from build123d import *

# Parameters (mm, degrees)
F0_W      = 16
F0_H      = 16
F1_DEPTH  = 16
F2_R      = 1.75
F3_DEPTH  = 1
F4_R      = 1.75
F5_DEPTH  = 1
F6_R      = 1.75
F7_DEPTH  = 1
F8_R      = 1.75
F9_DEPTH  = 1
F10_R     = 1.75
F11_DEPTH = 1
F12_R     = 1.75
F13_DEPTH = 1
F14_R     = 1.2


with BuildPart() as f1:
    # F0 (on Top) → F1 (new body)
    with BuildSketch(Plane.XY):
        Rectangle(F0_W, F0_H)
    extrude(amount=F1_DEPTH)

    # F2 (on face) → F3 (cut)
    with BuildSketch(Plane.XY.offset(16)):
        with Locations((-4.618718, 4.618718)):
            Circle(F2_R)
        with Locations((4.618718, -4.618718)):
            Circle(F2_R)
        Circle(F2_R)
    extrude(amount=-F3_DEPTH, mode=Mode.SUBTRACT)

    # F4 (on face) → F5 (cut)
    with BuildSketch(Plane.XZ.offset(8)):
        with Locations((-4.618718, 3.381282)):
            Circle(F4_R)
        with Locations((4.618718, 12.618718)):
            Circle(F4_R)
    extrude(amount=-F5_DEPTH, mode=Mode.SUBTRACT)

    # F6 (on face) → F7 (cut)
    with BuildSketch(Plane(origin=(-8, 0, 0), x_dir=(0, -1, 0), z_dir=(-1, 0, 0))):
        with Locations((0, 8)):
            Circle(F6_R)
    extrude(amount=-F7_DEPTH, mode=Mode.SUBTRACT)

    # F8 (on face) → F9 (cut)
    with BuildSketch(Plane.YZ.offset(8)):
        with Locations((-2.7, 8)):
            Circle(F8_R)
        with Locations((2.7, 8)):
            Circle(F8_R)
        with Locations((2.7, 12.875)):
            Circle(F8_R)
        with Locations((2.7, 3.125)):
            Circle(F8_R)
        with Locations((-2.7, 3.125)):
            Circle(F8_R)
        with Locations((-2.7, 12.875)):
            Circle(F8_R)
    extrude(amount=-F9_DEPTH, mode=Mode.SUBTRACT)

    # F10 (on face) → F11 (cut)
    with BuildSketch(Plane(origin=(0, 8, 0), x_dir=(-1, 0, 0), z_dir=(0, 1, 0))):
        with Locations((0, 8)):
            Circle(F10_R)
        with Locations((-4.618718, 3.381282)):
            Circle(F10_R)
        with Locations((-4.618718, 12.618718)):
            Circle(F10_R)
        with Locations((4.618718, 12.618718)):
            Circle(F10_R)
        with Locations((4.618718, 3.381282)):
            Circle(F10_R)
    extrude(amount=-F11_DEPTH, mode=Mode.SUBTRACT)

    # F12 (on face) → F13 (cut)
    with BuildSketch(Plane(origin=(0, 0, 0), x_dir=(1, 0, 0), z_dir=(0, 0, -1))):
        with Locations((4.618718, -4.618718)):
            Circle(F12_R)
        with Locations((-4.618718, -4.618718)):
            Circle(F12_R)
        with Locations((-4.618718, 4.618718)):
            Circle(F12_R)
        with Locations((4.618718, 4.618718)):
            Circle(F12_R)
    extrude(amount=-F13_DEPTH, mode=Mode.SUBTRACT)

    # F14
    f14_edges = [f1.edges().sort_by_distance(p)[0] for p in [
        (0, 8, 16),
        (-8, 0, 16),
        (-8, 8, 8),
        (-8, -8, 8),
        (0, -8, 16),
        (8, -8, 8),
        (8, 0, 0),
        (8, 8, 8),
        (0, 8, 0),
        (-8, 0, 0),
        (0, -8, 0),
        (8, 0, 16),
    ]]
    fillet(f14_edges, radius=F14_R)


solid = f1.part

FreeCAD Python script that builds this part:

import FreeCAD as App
import Part
import Sketcher

V = App.Vector
Q = App.Units.Quantity


def edges_at(feature, points):
    """Names of the edges that pass closest to the given points."""
    edges = feature.Shape.Edges
    near = lambda p: min(range(len(edges)), key=lambda i: edges[i].distToShape(Part.Vertex(*p))[0])
    return sorted({f"Edge{near(p) + 1}" for p in points})


def add_polygon(sketch, points):
    """Adds a closed chain of lines whose ends are joined by coincident constraints."""
    first, n = sketch.GeometryCount, len(points)
    for a, b in zip(points, points[1:] + points[:1]):
        sketch.addGeometry(Part.LineSegment(App.Vector(*a, 0), App.Vector(*b, 0)), False)
    for i in range(n):
        sketch.addConstraint(Sketcher.Constraint("Coincident", first + i, 2, first + (i + 1) % n, 1))

doc = App.newDocument("Part")
body = doc.addObject("PartDesign::Body", "Body")

sketch1 = body.newObject("Sketcher::SketchObject", "Sketch")
sketch1.AttachmentSupport = (doc.getObject("XY_Plane"), [""])
sketch1.MapMode = "FlatFace"
add_polygon(sketch1, [(-8, 8), (-8, -8), (8, -8), (8, 8)])
sketch1.addConstraint(Sketcher.Constraint("Vertical", 0))
sketch1.addConstraint(Sketcher.Constraint("Horizontal", 1))
sketch1.addConstraint(Sketcher.Constraint("Vertical", 2))
sketch1.addConstraint(Sketcher.Constraint("Horizontal", 3))
sketch1.addConstraint(Sketcher.Constraint("Symmetric", 0, 2, 2, 2, -1, 1))
sketch1.addConstraint(Sketcher.Constraint("Equal", 3, 0))
sketch1.addConstraint(Sketcher.Constraint("DistanceX", 1, 1, 1, 2, Q("16 mm")))
pad1 = body.newObject("PartDesign::Pad", "Pad")
pad1.Profile = sketch1
pad1.Length = 16

sketch2 = body.newObject("Sketcher::SketchObject", "Sketch001")
sketch2.AttachmentSupport = (doc.getObject("XY_Plane"), [""])
sketch2.MapMode = "FlatFace"
sketch2.AttachmentOffset = App.Placement(V(0, 0, 16), App.Rotation())
sketch2.addGeometry(Part.Circle(V(-4.6, 4.6, 0), V(0, 0, 1), 1.8), False)
sketch2.addGeometry(Part.Circle(V(4.6, -4.6, 0), V(0, 0, 1), 1.8), False)
sketch2.addGeometry(Part.Circle(V(0, 0, 0), V(0, 0, 1), 1.8), False)
sketch2.addConstraint(Sketcher.Constraint("Coincident", 2, 3, -1, 1))
sketch2.addConstraint(Sketcher.Constraint("Equal", 0, 1))
sketch2.addConstraint(Sketcher.Constraint("Equal", 1, 2))
sketch2.addConstraint(Sketcher.Constraint("Symmetric", 0, 3, 1, 3, -1, 1))
sketch2.addConstraint(Sketcher.Constraint("Diameter", 0, Q("3.5 mm")))
sketch2.addConstraint(Sketcher.Constraint("DistanceX", 0, 3, -1, 1, Q("4.618718 mm")))
sketch2.addConstraint(Sketcher.Constraint("DistanceY", -1, 1, 0, 3, Q("4.618718 mm")))
pocket1 = body.newObject("PartDesign::Pocket", "Pocket")
pocket1.Profile = sketch2
pocket1.Length = 1

sketch3 = body.newObject("Sketcher::SketchObject", "Sketch002")
sketch3.AttachmentSupport = (doc.getObject("XZ_Plane"), [""])
sketch3.MapMode = "FlatFace"
sketch3.AttachmentOffset = App.Placement(V(0, 0, 8), App.Rotation())
sketch3.addGeometry(Part.Circle(V(-4.6, 3.4, 0), V(0, 0, 1), 1.8), False)
sketch3.addGeometry(Part.Circle(V(4.6, 12.6, 0), V(0, 0, 1), 1.8), False)
sketch3.addConstraint(Sketcher.Constraint("Equal", 0, 1))
sketch3.addConstraint(Sketcher.Constraint("Diameter", 0, Q("3.5 mm")))
sketch3.addConstraint(Sketcher.Constraint("DistanceX", 0, 3, -1, 1, Q("4.618718 mm")))
sketch3.addConstraint(Sketcher.Constraint("DistanceX", -1, 1, 1, 3, Q("4.618718 mm")))
sketch3.addConstraint(Sketcher.Constraint("DistanceY", -1, 1, 0, 3, Q("3.381282 mm")))
sketch3.addConstraint(Sketcher.Constraint("DistanceY", -1, 1, 1, 3, Q("12.618718 mm")))
pocket2 = body.newObject("PartDesign::Pocket", "Pocket001")
pocket2.Profile = sketch3
pocket2.Length = 1

sketch4 = body.newObject("Sketcher::SketchObject", "Sketch003")
sketch4.AttachmentSupport = (doc.getObject("YZ_Plane"), [""])
sketch4.MapMode = "FlatFace"
sketch4.AttachmentOffset = App.Placement(V(0, 0, -8), App.Rotation())
sketch4.addGeometry(Part.Circle(V(0, 8, 0), V(0, 0, 1), 1.8), False)
sketch4.addConstraint(Sketcher.Constraint("PointOnObject", 0, 3, -2))
sketch4.addConstraint(Sketcher.Constraint("Diameter", 0, Q("3.5 mm")))
sketch4.addConstraint(Sketcher.Constraint("DistanceY", -1, 1, 0, 3, Q("8 mm")))
pocket3 = body.newObject("PartDesign::Pocket", "Pocket002")
pocket3.Profile = sketch4
pocket3.Length = 1
pocket3.Reversed = True

sketch5 = body.newObject("Sketcher::SketchObject", "Sketch004")
sketch5.AttachmentSupport = (doc.getObject("YZ_Plane"), [""])
sketch5.MapMode = "FlatFace"
sketch5.AttachmentOffset = App.Placement(V(0, 0, 8), App.Rotation())
sketch5.addGeometry(Part.Circle(V(-2.7, 8, 0), V(0, 0, 1), 1.8), False)
sketch5.addGeometry(Part.Circle(V(2.7, 8, 0), V(0, 0, 1), 1.8), False)
sketch5.addGeometry(Part.Circle(V(2.7, 12.9, 0), V(0, 0, 1), 1.8), False)
sketch5.addGeometry(Part.Circle(V(2.7, 3.1, 0), V(0, 0, 1), 1.8), False)
sketch5.addGeometry(Part.Circle(V(-2.7, 3.1, 0), V(0, 0, 1), 1.8), False)
sketch5.addGeometry(Part.Circle(V(-2.7, 12.9, 0), V(0, 0, 1), 1.8), False)
sketch5.addConstraint(Sketcher.Constraint("Equal", 0, 1))
sketch5.addConstraint(Sketcher.Constraint("Equal", 1, 2))
sketch5.addConstraint(Sketcher.Constraint("Equal", 2, 3))
sketch5.addConstraint(Sketcher.Constraint("Equal", 3, 4))
sketch5.addConstraint(Sketcher.Constraint("Equal", 4, 5))
sketch5.addConstraint(Sketcher.Constraint("Symmetric", 0, 3, 1, 3, -2))
sketch5.addConstraint(Sketcher.Constraint("Symmetric", 3, 3, 4, 3, -2))
sketch5.addConstraint(Sketcher.Constraint("Symmetric", 2, 3, 5, 3, -2))
sketch5.addConstraint(Sketcher.Constraint("Vertical", 1, 3, 2, 3))
sketch5.addConstraint(Sketcher.Constraint("Vertical", 2, 3, 3, 3))
sketch5.addConstraint(Sketcher.Constraint("Diameter", 0, Q("3.5 mm")))
sketch5.addConstraint(Sketcher.Constraint("DistanceY", -1, 1, 0, 3, Q("8 mm")))
sketch5.addConstraint(Sketcher.Constraint("DistanceX", 0, 3, -1, 1, Q("2.7 mm")))
sketch5.addConstraint(Sketcher.Constraint("DistanceY", 3, 3, 2, 3, Q("9.75 mm")))
sketch5.addConstraint(Sketcher.Constraint("DistanceY", -1, 1, 2, 3, Q("12.875 mm")))
pocket4 = body.newObject("PartDesign::Pocket", "Pocket003")
pocket4.Profile = sketch5
pocket4.Length = 1

sketch6 = body.newObject("Sketcher::SketchObject", "Sketch005")
sketch6.AttachmentSupport = (doc.getObject("XZ_Plane"), [""])
sketch6.MapMode = "FlatFace"
sketch6.AttachmentOffset = App.Placement(V(0, 0, -8), App.Rotation())
sketch6.addGeometry(Part.Circle(V(0, 8, 0), V(0, 0, 1), 1.8), False)
sketch6.addGeometry(Part.Circle(V(4.6, 3.4, 0), V(0, 0, 1), 1.8), False)
sketch6.addGeometry(Part.Circle(V(4.6, 12.6, 0), V(0, 0, 1), 1.8), False)
sketch6.addGeometry(Part.Circle(V(-4.6, 12.6, 0), V(0, 0, 1), 1.8), False)
sketch6.addGeometry(Part.Circle(V(-4.6, 3.4, 0), V(0, 0, 1), 1.8), False)
sketch6.addConstraint(Sketcher.Constraint("Equal", 0, 1))
sketch6.addConstraint(Sketcher.Constraint("Equal", 1, 2))
sketch6.addConstraint(Sketcher.Constraint("Equal", 2, 3))
sketch6.addConstraint(Sketcher.Constraint("Equal", 3, 4))
sketch6.addConstraint(Sketcher.Constraint("Symmetric", 2, 3, 3, 3, -2))
sketch6.addConstraint(Sketcher.Constraint("Symmetric", 1, 3, 4, 3, -2))
sketch6.addConstraint(Sketcher.Constraint("PointOnObject", 0, 3, -2))
sketch6.addConstraint(Sketcher.Constraint("Vertical", 1, 3, 2, 3))
sketch6.addConstraint(Sketcher.Constraint("Diameter", 0, Q("3.5 mm")))
sketch6.addConstraint(Sketcher.Constraint("DistanceY", -1, 1, 0, 3, Q("8 mm")))
sketch6.addConstraint(Sketcher.Constraint("DistanceX", -1, 1, 1, 3, Q("4.618718 mm")))
sketch6.addConstraint(Sketcher.Constraint("DistanceY", -1, 1, 1, 3, Q("3.381282 mm")))
sketch6.addConstraint(Sketcher.Constraint("DistanceY", -1, 1, 2, 3, Q("12.618718 mm")))
pocket5 = body.newObject("PartDesign::Pocket", "Pocket004")
pocket5.Profile = sketch6
pocket5.Length = 1
pocket5.Reversed = True

sketch7 = body.newObject("Sketcher::SketchObject", "Sketch006")
sketch7.AttachmentSupport = (doc.getObject("XY_Plane"), [""])
sketch7.MapMode = "FlatFace"
sketch7.addGeometry(Part.Circle(V(4.6, 4.6, 0), V(0, 0, 1), 1.8), False)
sketch7.addGeometry(Part.Circle(V(-4.6, 4.6, 0), V(0, 0, 1), 1.8), False)
sketch7.addGeometry(Part.Circle(V(-4.6, -4.6, 0), V(0, 0, 1), 1.8), False)
sketch7.addGeometry(Part.Circle(V(4.6, -4.6, 0), V(0, 0, 1), 1.8), False)
sketch7.addConstraint(Sketcher.Constraint("Equal", 0, 1))
sketch7.addConstraint(Sketcher.Constraint("Equal", 1, 2))
sketch7.addConstraint(Sketcher.Constraint("Equal", 2, 3))
sketch7.addConstraint(Sketcher.Constraint("Symmetric", 0, 3, 2, 3, -1, 1))
sketch7.addConstraint(Sketcher.Constraint("Symmetric", 1, 3, 3, 3, -1, 1))
sketch7.addConstraint(Sketcher.Constraint("Symmetric", 0, 3, 1, 3, -2))
sketch7.addConstraint(Sketcher.Constraint("Diameter", 0, Q("3.5 mm")))
sketch7.addConstraint(Sketcher.Constraint("DistanceX", -1, 1, 0, 3, Q("4.618718 mm")))
sketch7.addConstraint(Sketcher.Constraint("DistanceY", -1, 1, 0, 3, Q("4.618718 mm")))
pocket6 = body.newObject("PartDesign::Pocket", "Pocket005")
pocket6.Profile = sketch7
pocket6.Length = 1
pocket6.Reversed = True
doc.recompute()

fillet = body.newObject("PartDesign::Fillet", "Fillet")
fillet.Base = (pocket6, edges_at(pocket6, [
    (0, 8, 16),
    (-8, 0, 16),
    (-8, 8, 8),
    (-8, -8, 8),
    (0, -8, 16),
    (8, -8, 8),
    (8, 0, 0),
    (8, 8, 8),
    (0, 8, 0),
    (-8, 0, 0),
    (0, -8, 0),
    (8, 0, 16),
]))
fillet.Radius = 1.2

doc.recompute()
